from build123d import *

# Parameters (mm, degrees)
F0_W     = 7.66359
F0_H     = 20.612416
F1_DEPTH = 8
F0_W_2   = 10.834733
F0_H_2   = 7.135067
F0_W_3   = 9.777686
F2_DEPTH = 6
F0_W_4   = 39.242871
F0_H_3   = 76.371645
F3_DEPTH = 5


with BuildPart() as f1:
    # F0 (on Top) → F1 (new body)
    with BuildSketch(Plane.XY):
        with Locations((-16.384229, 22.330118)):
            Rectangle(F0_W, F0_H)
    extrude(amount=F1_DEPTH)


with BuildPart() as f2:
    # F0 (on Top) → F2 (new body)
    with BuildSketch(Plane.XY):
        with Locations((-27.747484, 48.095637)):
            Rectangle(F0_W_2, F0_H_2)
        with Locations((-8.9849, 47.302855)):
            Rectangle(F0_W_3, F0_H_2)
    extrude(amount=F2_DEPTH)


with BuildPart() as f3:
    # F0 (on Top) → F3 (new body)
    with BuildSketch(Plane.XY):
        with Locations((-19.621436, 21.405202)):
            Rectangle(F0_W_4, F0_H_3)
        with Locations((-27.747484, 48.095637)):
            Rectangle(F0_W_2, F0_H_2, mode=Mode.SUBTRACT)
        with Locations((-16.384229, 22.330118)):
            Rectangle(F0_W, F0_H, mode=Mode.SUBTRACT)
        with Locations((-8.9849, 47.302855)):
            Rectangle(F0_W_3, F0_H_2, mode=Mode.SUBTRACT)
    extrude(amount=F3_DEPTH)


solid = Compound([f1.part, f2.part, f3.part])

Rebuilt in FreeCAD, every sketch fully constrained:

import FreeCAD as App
import Part
import Sketcher

V = App.Vector

doc = App.newDocument("Part")
body = doc.addObject("PartDesign::Body", "Body")

# Sketch on XY plane
sketch1 = body.newObject("Sketcher::SketchObject", "Sketch")
sketch1.AttachmentSupport = (doc.getObject("XY_Plane"), [""])
sketch1.MapMode = "FlatFace"
sketch1.addGeometry(Part.LineSegment(V(-20, 33, 0), V(-20, 12, 0)), False)
sketch1.addGeometry(Part.LineSegment(V(-20, 12, 0), V(-13, 12, 0)), False)
sketch1.addGeometry(Part.LineSegment(V(-13, 12, 0), V(-13, 33, 0)), False)
sketch1.addGeometry(Part.LineSegment(V(-13, 33, 0), V(-20, 33, 0)), False)
sketch1.addConstraint(Sketcher.Constraint("Coincident", 0, 2, 1, 1))
sketch1.addConstraint(Sketcher.Constraint("Coincident", 1, 2, 2, 1))
sketch1.addConstraint(Sketcher.Constraint("Coincident", 2, 2, 3, 1))
sketch1.addConstraint(Sketcher.Constraint("Coincident", 3, 2, 0, 1))
sketch1.addConstraint(Sketcher.Constraint("Vertical", 0))
sketch1.addConstraint(Sketcher.Constraint("Horizontal", 1))
sketch1.addConstraint(Sketcher.Constraint("Vertical", 2))
sketch1.addConstraint(Sketcher.Constraint("Horizontal", 3))
sketch1.addConstraint(Sketcher.Constraint("DistanceX", 1, 1, 1, 2, 7.66359))
sketch1.addConstraint(Sketcher.Constraint("DistanceY", 0, 2, 0, 1, 20.612416))
sketch1.addConstraint(Sketcher.Constraint("DistanceY", -1, 1, 0, 2, 12.02391))
sketch1.addConstraint(Sketcher.Constraint("DistanceX", 0, 2, -1, 1, 20.216024))
pad1 = body.newObject("PartDesign::Pad", "Pad")
pad1.Profile = sketch1
pad1.Length = 8
body2 = doc.addObject("PartDesign::Body", "Body001")
body2.AllowCompound = True

# Sketch on XY plane
sketch2 = body2.newObject("Sketcher::SketchObject", "Sketch001")
sketch2.AttachmentSupport = (doc.getObject("XY_Plane001"), [""])
sketch2.MapMode = "FlatFace"
sketch2.addGeometry(Part.LineSegment(V(-33, 52, 0), V(-33, 45, 0)), False)
sketch2.addGeometry(Part.LineSegment(V(-33, 45, 0), V(-22, 45, 0)), False)
sketch2.addGeometry(Part.LineSegment(V(-22, 45, 0), V(-22, 52, 0)), False)
sketch2.addGeometry(Part.LineSegment(V(-22, 52, 0), V(-33, 52, 0)), False)
sketch2.addGeometry(Part.LineSegment(V(-14, 51, 0), V(-14, 44, 0)), False)
sketch2.addGeometry(Part.LineSegment(V(-14, 44, 0), V(-4, 44, 0)), False)
sketch2.addGeometry(Part.LineSegment(V(-4, 44, 0), V(-4, 51, 0)), False)
sketch2.addGeometry(Part.LineSegment(V(-4, 51, 0), V(-14, 51, 0)), False)
sketch2.addConstraint(Sketcher.Constraint("Coincident", 0, 2, 1, 1))
sketch2.addConstraint(Sketcher.Constraint("Coincident", 1, 2, 2, 1))
sketch2.addConstraint(Sketcher.Constraint("Coincident", 2, 2, 3, 1))
sketch2.addConstraint(Sketcher.Constraint("Coincident", 3, 2, 0, 1))
sketch2.addConstraint(Sketcher.Constraint("Coincident", 4, 2, 5, 1))
sketch2.addConstraint(Sketcher.Constraint("Coincident", 5, 2, 6, 1))
sketch2.addConstraint(Sketcher.Constraint("Coincident", 6, 2, 7, 1))
sketch2.addConstraint(Sketcher.Constraint("Coincident", 7, 2, 4, 1))
sketch2.addConstraint(Sketcher.Constraint("Vertical", 0))
sketch2.addConstraint(Sketcher.Constraint("Horizontal", 1))
sketch2.addConstraint(Sketcher.Constraint("Vertical", 2))
sketch2.addConstraint(Sketcher.Constraint("Horizontal", 3))
sketch2.addConstraint(Sketcher.Constraint("Vertical", 4))
sketch2.addConstraint(Sketcher.Constraint("Horizontal", 5))
sketch2.addConstraint(Sketcher.Constraint("Vertical", 6))
sketch2.addConstraint(Sketcher.Constraint("Horizontal", 7))
sketch2.addConstraint(Sketcher.Constraint("Equal", 2, 4))
sketch2.addConstraint(Sketcher.Constraint("DistanceX", 1, 1, 1, 2, 10.834733))
sketch2.addConstraint(Sketcher.Constraint("DistanceX", 5, 1, 5, 2, 9.777686))
sketch2.addConstraint(Sketcher.Constraint("DistanceY", 0, 2, 0, 1, 7.135067))
sketch2.addConstraint(Sketcher.Constraint("DistanceX", 0, 2, -1, 1, 33.164851))
sketch2.addConstraint(Sketcher.Constraint("DistanceY", -1, 1, 2, 2, 51.66317))
sketch2.addConstraint(Sketcher.Constraint("DistanceY", -1, 1, 4, 2, 43.735321))
sketch2.addConstraint(Sketcher.Constraint("DistanceX", 1, 2, 5, 2, 18.23406))
pad2 = body2.newObject("PartDesign::Pad", "Pad001")
pad2.Profile = sketch2
pad2.Length = 6
body3 = doc.addObject("PartDesign::Body", "Body002")

# Sketch on XY plane
sketch3 = body3.newObject("Sketcher::SketchObject", "Sketch002")
sketch3.AttachmentSupport = (doc.getObject("XY_Plane002"), [""])
sketch3.MapMode = "FlatFace"
sketch3.addGeometry(Part.LineSegment(V(-39, 60, 0), V(-39, -17, 0)), False)
sketch3.addGeometry(Part.LineSegment(V(-39, -17, 0), V(0, -17, 0)), False)
sketch3.addGeometry(Part.LineSegment(V(0, -17, 0), V(0, 60, 0)), False)
sketch3.addGeometry(Part.LineSegment(V(0, 60, 0), V(-39, 60, 0)), False)
sketch3.addGeometry(Part.LineSegment(V(-13, 12, 0), V(-20, 12, 0)), False)
sketch3.addGeometry(Part.LineSegment(V(-20, 12, 0), V(-20, 33, 0)), False)
sketch3.addGeometry(Part.LineSegment(V(-20, 33, 0), V(-13, 33, 0)), False)
sketch3.addGeometry(Part.LineSegment(V(-13, 33, 0), V(-13, 12, 0)), False)
sketch3.addGeometry(Part.LineSegment(V(-22, 45, 0), V(-33, 45, 0)), False)
sketch3.addGeometry(Part.LineSegment(V(-33, 45, 0), V(-33, 52, 0)), False)
sketch3.addGeometry(Part.LineSegment(V(-33, 52, 0), V(-22, 52, 0)), False)
sketch3.addGeometry(Part.LineSegment(V(-22, 52, 0), V(-22, 45, 0)), False)
sketch3.addGeometry(Part.LineSegment(V(-4, 44, 0), V(-14, 44, 0)), False)
sketch3.addGeometry(Part.LineSegment(V(-14, 44, 0), V(-14, 51, 0)), False)
sketch3.addGeometry(Part.LineSegment(V(-14, 51, 0), V(-4, 51, 0)), False)
sketch3.addGeometry(Part.LineSegment(V(-4, 51, 0), V(-4, 44, 0)), False)
sketch3.addConstraint(Sketcher.Constraint("Coincident", 0, 2, 1, 1))
sketch3.addConstraint(Sketcher.Constraint("Coincident", 1, 2, 2, 1))
sketch3.addConstraint(Sketcher.Constraint("Coincident", 2, 2, 3, 1))
sketch3.addConstraint(Sketcher.Constraint("Coincident", 3, 2, 0, 1))
sketch3.addConstraint(Sketcher.Constraint("Coincident", 4, 2, 5, 1))
sketch3.addConstraint(Sketcher.Constraint("Coincident", 5, 2, 6, 1))
sketch3.addConstraint(Sketcher.Constraint("Coincident", 6, 2, 7, 1))
sketch3.addConstraint(Sketcher.Constraint("Coincident", 7, 2, 4, 1))
sketch3.addConstraint(Sketcher.Constraint("Coincident", 8, 2, 9, 1))
sketch3.addConstraint(Sketcher.Constraint("Coincident", 9, 2, 10, 1))
sketch3.addConstraint(Sketcher.Constraint("Coincident", 10, 2, 11, 1))
sketch3.addConstraint(Sketcher.Constraint("Coincident", 11, 2, 8, 1))
sketch3.addConstraint(Sketcher.Constraint("Coincident", 12, 2, 13, 1))
sketch3.addConstraint(Sketcher.Constraint("Coincident", 13, 2, 14, 1))
sketch3.addConstraint(Sketcher.Constraint("Coincident", 14, 2, 15, 1))
sketch3.addConstraint(Sketcher.Constraint("Coincident", 15, 2, 12, 1))
sketch3.addConstraint(Sketcher.Constraint("Vertical", 0))
sketch3.addConstraint(Sketcher.Constraint("Horizontal", 1))
sketch3.addConstraint(Sketcher.Constraint("Vertical", 2))
sketch3.addConstraint(Sketcher.Constraint("Horizontal", 3))
sketch3.addConstraint(Sketcher.Constraint("Horizontal", 4))
sketch3.addConstraint(Sketcher.Constraint("Vertical", 5))
sketch3.addConstraint(Sketcher.Constraint("Horizontal", 6))
sketch3.addConstraint(Sketcher.Constraint("Vertical", 7))
sketch3.addConstraint(Sketcher.Constraint("Horizontal", 8))
sketch3.addConstraint(Sketcher.Constraint("Vertical", 9))
sketch3.addConstraint(Sketcher.Constraint("Horizontal", 10))
sketch3.addConstraint(Sketcher.Constraint("Vertical", 11))
sketch3.addConstraint(Sketcher.Constraint("Horizontal", 12))
sketch3.addConstraint(Sketcher.Constraint("Vertical", 13))
sketch3.addConstraint(Sketcher.Constraint("Horizontal", 14))
sketch3.addConstraint(Sketcher.Constraint("Vertical", 15))
sketch3.addConstraint(Sketcher.Constraint("PointOnObject", 1, 2, -2))
sketch3.addConstraint(Sketcher.Constraint("Equal", 11, 13))
sketch3.addConstraint(Sketcher.Constraint("DistanceX", 1, 1, 1, 2, 39.242871))
sketch3.addConstraint(Sketcher.Constraint("DistanceX", 4, 2, 4, 1, 7.66359))
sketch3.addConstraint(Sketcher.Constraint("DistanceY", 5, 2, 3, 2, 26.954699))
sketch3.addConstraint(Sketcher.Constraint("DistanceX", 8, 2, 8, 1, 10.834733))
sketch3.addConstraint(Sketcher.Constraint("DistanceX", 12, 2, 12, 1, 9.777686))
sketch3.addConstraint(Sketcher.Constraint("DistanceY", 0, 2, 0, 1, 76.371645))
sketch3.addConstraint(Sketcher.Constraint("DistanceY", 5, 1, 5, 2, 20.612416))
sketch3.addConstraint(Sketcher.Constraint("DistanceY", 9, 1, 9, 2, 7.135067))
sketch3.addConstraint(Sketcher.Constraint("DistanceY", 0, 2, -1, 1, 16.780621))
sketch3.addConstraint(Sketcher.Constraint("DistanceX", 8, 2, -1, 1, 33.164851))
sketch3.addConstraint(Sketcher.Constraint("DistanceY", -1, 1, 9, 2, 51.66317))
sketch3.addConstraint(Sketcher.Constraint("DistanceY", -1, 1, 12, 2, 43.735321))
sketch3.addConstraint(Sketcher.Constraint("DistanceX", 12, 2, 6, 2, 1.321309))
sketch3.addConstraint(Sketcher.Constraint("DistanceX", 10, 2, 14, 2, 18.23406))
pad3 = body3.newObject("PartDesign::Pad", "Pad002")
pad3.Profile = sketch3
pad3.Length = 5

doc.recompute()
